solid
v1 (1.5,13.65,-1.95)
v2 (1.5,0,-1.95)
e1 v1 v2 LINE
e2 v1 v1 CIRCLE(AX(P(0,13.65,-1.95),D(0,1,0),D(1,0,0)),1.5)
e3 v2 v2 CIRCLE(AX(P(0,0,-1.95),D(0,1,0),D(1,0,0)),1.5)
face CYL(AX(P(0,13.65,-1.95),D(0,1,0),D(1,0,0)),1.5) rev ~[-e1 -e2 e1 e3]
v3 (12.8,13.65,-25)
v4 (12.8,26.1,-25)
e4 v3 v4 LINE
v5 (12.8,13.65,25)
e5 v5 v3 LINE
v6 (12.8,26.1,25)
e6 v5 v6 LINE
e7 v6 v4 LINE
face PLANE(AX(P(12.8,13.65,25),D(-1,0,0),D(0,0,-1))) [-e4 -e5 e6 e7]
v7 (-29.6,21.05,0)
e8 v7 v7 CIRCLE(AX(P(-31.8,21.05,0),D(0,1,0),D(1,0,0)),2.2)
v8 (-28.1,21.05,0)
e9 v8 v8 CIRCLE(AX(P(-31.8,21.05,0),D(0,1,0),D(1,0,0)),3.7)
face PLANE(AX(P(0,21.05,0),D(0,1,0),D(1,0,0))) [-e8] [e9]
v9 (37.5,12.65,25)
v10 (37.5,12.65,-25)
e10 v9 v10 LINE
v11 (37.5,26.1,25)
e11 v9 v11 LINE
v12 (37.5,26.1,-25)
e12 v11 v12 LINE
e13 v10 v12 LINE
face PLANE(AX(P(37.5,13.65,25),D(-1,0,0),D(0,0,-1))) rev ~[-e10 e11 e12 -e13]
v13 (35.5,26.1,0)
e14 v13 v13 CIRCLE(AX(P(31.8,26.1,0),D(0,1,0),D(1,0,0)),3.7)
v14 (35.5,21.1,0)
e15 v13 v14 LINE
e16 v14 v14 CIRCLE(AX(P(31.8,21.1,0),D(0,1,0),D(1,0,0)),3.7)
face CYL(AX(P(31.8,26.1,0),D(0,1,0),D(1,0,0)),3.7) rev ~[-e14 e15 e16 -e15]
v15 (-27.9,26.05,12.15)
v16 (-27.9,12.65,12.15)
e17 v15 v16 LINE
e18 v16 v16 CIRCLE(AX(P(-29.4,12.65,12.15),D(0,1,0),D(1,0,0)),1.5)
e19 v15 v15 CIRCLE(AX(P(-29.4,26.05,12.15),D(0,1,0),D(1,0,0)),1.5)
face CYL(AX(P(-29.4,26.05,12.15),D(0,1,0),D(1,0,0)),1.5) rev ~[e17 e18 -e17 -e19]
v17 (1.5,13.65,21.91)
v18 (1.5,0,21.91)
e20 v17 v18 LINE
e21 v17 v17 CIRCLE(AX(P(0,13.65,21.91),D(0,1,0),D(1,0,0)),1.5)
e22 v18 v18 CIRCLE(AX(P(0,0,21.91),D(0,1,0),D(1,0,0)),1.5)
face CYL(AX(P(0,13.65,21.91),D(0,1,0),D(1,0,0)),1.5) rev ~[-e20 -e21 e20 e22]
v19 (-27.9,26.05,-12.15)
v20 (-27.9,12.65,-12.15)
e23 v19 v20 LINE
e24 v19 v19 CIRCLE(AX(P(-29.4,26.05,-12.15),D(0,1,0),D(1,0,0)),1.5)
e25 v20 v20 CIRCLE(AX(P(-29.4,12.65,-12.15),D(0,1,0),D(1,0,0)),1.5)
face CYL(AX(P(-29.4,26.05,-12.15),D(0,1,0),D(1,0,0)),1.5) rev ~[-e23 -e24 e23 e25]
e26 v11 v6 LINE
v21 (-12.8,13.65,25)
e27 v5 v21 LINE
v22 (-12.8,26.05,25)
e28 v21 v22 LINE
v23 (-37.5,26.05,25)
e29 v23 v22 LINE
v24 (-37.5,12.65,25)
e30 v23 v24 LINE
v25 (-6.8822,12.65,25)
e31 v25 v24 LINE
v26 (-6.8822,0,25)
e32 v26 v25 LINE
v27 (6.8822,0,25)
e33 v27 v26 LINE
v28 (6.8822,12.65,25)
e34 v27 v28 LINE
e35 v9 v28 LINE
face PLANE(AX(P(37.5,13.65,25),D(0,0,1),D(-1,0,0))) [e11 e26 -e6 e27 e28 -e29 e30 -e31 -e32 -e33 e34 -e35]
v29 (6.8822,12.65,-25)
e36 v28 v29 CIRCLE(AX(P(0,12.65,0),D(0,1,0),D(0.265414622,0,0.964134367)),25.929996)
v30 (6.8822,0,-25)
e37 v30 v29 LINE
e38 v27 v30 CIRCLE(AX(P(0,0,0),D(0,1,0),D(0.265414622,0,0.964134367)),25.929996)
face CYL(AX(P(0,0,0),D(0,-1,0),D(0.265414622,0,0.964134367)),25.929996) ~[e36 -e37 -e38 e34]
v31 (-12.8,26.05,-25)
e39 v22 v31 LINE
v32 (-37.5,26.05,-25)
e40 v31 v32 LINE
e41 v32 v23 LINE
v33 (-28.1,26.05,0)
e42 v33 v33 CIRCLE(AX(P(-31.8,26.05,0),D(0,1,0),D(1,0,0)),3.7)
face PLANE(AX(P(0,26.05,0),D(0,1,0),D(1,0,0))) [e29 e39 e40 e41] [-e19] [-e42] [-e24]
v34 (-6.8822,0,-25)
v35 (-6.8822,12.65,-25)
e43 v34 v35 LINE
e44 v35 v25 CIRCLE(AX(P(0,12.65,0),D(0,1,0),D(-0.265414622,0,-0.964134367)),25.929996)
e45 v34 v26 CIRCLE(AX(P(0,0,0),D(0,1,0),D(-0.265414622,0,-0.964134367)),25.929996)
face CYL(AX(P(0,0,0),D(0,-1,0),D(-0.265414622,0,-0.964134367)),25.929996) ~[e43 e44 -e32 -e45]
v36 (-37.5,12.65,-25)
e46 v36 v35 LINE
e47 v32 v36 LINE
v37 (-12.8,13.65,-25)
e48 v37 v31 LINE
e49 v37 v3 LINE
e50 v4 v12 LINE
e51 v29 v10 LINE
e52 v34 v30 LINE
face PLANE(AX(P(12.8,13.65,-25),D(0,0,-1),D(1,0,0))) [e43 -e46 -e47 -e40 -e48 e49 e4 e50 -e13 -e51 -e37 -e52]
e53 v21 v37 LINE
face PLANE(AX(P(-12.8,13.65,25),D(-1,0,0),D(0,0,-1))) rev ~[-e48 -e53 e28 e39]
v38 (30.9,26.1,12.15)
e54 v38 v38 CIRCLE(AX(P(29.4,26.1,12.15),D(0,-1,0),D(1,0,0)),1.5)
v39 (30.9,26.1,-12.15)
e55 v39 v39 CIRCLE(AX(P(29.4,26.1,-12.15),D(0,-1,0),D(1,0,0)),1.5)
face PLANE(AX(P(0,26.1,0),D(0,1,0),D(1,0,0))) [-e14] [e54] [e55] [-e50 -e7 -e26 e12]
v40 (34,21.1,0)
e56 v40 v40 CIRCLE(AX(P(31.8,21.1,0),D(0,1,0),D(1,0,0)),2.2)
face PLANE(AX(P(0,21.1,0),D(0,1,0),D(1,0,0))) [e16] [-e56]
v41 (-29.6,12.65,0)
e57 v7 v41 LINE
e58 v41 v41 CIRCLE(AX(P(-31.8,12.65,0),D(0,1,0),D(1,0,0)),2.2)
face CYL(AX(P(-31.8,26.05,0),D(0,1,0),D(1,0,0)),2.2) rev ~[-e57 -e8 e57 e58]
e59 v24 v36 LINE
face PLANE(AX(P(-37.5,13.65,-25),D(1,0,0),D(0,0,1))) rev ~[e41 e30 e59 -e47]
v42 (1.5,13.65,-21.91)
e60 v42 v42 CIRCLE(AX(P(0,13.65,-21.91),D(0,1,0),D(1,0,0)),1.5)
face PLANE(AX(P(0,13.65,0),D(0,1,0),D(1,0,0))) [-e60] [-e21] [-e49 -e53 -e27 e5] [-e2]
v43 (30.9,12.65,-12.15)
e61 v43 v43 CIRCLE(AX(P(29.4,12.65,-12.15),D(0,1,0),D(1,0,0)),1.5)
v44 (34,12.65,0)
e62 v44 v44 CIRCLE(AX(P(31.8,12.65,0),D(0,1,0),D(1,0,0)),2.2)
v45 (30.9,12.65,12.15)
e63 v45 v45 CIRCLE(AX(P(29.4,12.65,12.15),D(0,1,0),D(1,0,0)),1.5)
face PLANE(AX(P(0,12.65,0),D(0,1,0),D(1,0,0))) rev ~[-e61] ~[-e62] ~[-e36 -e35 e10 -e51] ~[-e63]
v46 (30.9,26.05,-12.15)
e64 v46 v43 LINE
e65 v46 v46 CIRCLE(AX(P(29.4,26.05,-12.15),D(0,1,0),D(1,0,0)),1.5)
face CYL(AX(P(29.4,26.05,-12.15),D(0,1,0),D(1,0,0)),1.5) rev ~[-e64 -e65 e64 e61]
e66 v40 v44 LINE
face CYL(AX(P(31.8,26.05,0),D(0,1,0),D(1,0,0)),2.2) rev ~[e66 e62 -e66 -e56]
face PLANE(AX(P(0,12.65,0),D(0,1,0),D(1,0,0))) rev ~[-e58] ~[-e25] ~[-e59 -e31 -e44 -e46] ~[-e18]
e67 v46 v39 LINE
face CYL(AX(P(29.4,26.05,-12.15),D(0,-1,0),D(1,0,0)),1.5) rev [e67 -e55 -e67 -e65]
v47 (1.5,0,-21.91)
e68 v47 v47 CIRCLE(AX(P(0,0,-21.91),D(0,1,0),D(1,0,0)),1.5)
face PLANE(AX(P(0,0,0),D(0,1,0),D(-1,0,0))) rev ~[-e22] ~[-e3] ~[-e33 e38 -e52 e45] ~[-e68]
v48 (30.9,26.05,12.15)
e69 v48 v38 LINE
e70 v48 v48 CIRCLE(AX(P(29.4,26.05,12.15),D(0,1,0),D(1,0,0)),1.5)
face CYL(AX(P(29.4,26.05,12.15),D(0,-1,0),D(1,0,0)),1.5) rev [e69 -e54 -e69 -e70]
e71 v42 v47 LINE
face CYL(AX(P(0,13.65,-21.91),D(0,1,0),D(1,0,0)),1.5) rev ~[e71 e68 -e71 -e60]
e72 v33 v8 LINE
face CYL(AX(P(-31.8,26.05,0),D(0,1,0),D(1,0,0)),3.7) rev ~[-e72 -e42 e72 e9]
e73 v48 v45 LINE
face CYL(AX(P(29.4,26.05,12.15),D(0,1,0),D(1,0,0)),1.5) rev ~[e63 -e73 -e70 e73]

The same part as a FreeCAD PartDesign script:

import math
import FreeCAD as App
import Part
import Sketcher

V = App.Vector


def add_polygon(sketch, points):
    """Adds a closed chain of lines whose ends are joined by coincident constraints."""
    first, n = sketch.GeometryCount, len(points)
    for a, b in zip(points, points[1:] + points[:1]):
        sketch.addGeometry(Part.LineSegment(App.Vector(*a, 0), App.Vector(*b, 0)), False)
    for i in range(n):
        sketch.addConstraint(Sketcher.Constraint("Coincident", first + i, 2, first + (i + 1) % n, 1))

doc = App.newDocument("Part")
params = doc.addObject("Spreadsheet::Sheet", "Params")
for row, (alias, value) in enumerate([
    ("sketch1_radius", "25.93 mm"),
    ("pad1_length", "12.65 mm"),
    ("sketch2_width", "75 mm"),
    ("sketch2_height", "50 mm"),
    ("pad2_length", "1 mm"),
    ("sketch3_width", "24.7 mm"),
    ("sketch3_height", "50 mm"),
    ("pad3_length", "12.4 mm"),
    ("sketch4_width", "24.7 mm"),
    ("sketch4_height", "50 mm"),
    ("pad4_length", "12.45 mm"),
    ("sketch5_diameter", "3 mm"),
    ("pocket1_length", "18.8 mm"),
    ("sketch6_diameter", "3 mm"),
    ("sketch6_diameter2", "4.4 mm"),
    ("pocket2_length", "35 mm"),
    ("sketch7_diameter", "7.4 mm"),
    ("pocket3_length", "5 mm"),
    ("sketch8_diameter", "7.4 mm"),
    ("pocket4_length", "5 mm"),
], start=1):
    params.set(f"A{row}", alias)
    params.set(f"B{row}", "=" + value)
    params.setAlias(f"B{row}", alias)

body = doc.addObject("PartDesign::Body", "Body")

# Sketch on XZ plane
sketch1 = body.newObject("Sketcher::SketchObject", "Sketch")
sketch1.AttachmentSupport = (doc.getObject("XZ_Plane"), [""])
sketch1.MapMode = "FlatFace"
sketch1.addGeometry([
    Part.LineSegment(V(7, -25, 0), V(-7, -25, 0)),
    Part.ArcOfCircle(Part.Circle(V(0, 0, 0), V(0, 0, 1), 26), math.radians(105), math.radians(255)),
    Part.LineSegment(V(-7, 25, 0), V(7, 25, 0)),
    Part.ArcOfCircle(Part.Circle(V(0, 0, 0), V(0, 0, 1), 26), math.radians(-75), math.radians(75)),
], False)
sketch1.addConstraint([
    Sketcher.Constraint("Coincident", 0, 2, 1, 2),
    Sketcher.Constraint("Coincident", 1, 1, 2, 1),
    Sketcher.Constraint("Coincident", 2, 2, 3, 2),
    Sketcher.Constraint("Coincident", 3, 1, 0, 1),
    Sketcher.Constraint("Horizontal", 0),
    Sketcher.Constraint("Horizontal", 2),
    Sketcher.Constraint("Coincident", 1, 3, -1, 1),
    Sketcher.Constraint("Coincident", 3, 3, -1, 1),
    Sketcher.Constraint("Equal", 1, 3),
    Sketcher.Constraint("Vertical", 0, 2, 1, 1),
    Sketcher.Constraint("DistanceY", 0, 2, 1, 1, 50.0),
    Sketcher.Constraint("Radius", 1, 25.93),
])
sketch1.setExpression("Constraints[11]", "Params.sketch1_radius")
pad1 = body.newObject("PartDesign::Pad", "Pad")
pad1.Profile = sketch1
pad1.setExpression("Length", "Params.pad1_length")
pad1.Reversed = True

# Sketch on XZ plane
sketch2 = body.newObject("Sketcher::SketchObject", "Sketch001")
sketch2.AttachmentSupport = (doc.getObject("XZ_Plane"), [""])
sketch2.MapMode = "FlatFace"
sketch2.AttachmentOffset = App.Placement(V(0, 0, -12.65), App.Rotation())
add_polygon(sketch2, [(38, -25), (-38, -25), (-38, 25), (38, 25)])  # lines 0-3
sketch2.addConstraint([
    Sketcher.Constraint("Horizontal", 0),
    Sketcher.Constraint("Vertical", 1),
    Sketcher.Constraint("Horizontal", 2),
    Sketcher.Constraint("Vertical", 3),
    Sketcher.Constraint("Symmetric", 0, 2, 2, 2, -1, 1),
    Sketcher.Constraint("DistanceX", 0, 2, 0, 1, 75.0),
    Sketcher.Constraint("DistanceY", 1, 1, 1, 2, 50.0),
])
sketch2.setExpression("Constraints[9]", "Params.sketch2_width")
sketch2.setExpression("Constraints[10]", "Params.sketch2_height")
pad2 = body.newObject("PartDesign::Pad", "Pad001")
pad2.Profile = sketch2
pad2.setExpression("Length", "Params.pad2_length")
pad2.Reversed = True

# Sketch on XZ plane
sketch3 = body.newObject("Sketcher::SketchObject", "Sketch002")
sketch3.AttachmentSupport = (doc.getObject("XZ_Plane"), [""])
sketch3.MapMode = "FlatFace"
sketch3.AttachmentOffset = App.Placement(V(0, 0, -13.65), App.Rotation())
add_polygon(sketch3, [(-38, 25), (-13, 25), (-13, -25), (-38, -25)])  # lines 0-3
sketch3.addConstraint([
    Sketcher.Constraint("Horizontal", 0),
    Sketcher.Constraint("Vertical", 1),
    Sketcher.Constraint("Horizontal", 2),
    Sketcher.Constraint("Vertical", 3),
    Sketcher.Constraint("DistanceX", 0, 1, 0, 2, 24.7),
    Sketcher.Constraint("DistanceY", 1, 2, 1, 1, 50.0),
    Sketcher.Constraint("DistanceY", -1, 1, 0, 2, 25.0),
    Sketcher.Constraint("DistanceX", 0, 2, -1, 1, 12.8),
])
sketch3.setExpression("Constraints[8]", "Params.sketch3_width")
sketch3.setExpression("Constraints[9]", "Params.sketch3_height")
pad3 = body.newObject("PartDesign::Pad", "Pad002")
pad3.Profile = sketch3
pad3.setExpression("Length", "Params.pad3_length")
pad3.Reversed = True

# Sketch on XZ plane
sketch4 = body.newObject("Sketcher::SketchObject", "Sketch003")
sketch4.AttachmentSupport = (doc.getObject("XZ_Plane"), [""])
sketch4.MapMode = "FlatFace"
sketch4.AttachmentOffset = App.Placement(V(0, 0, -13.65), App.Rotation())
add_polygon(sketch4, [(13, 25), (38, 25), (38, -25), (13, -25)])  # lines 0-3
sketch4.addConstraint([
    Sketcher.Constraint("Horizontal", 0),
    Sketcher.Constraint("Vertical", 1),
    Sketcher.Constraint("Horizontal", 2),
    Sketcher.Constraint("Vertical", 3),
    Sketcher.Constraint("DistanceX", 0, 1, 0, 2, 24.7),
    Sketcher.Constraint("DistanceY", 1, 2, 1, 1, 50.0),
    Sketcher.Constraint("DistanceY", -1, 1, 0, 2, 25.0),
    Sketcher.Constraint("DistanceX", -1, 1, 0, 2, 37.5),
])
sketch4.setExpression("Constraints[8]", "Params.sketch4_width")
sketch4.setExpression("Constraints[9]", "Params.sketch4_height")
pad4 = body.newObject("PartDesign::Pad", "Pad003")
pad4.Profile = sketch4
pad4.setExpression("Length", "Params.pad4_length")
pad4.Reversed = True

# Sketch on XZ plane
sketch5 = body.newObject("Sketcher::SketchObject", "Sketch004")
sketch5.AttachmentSupport = (doc.getObject("XZ_Plane"), [""])
sketch5.MapMode = "FlatFace"
sketch5.AttachmentOffset = App.Placement(V(0, 0, -13.65), App.Rotation())
sketch5.addGeometry([
    Part.Circle(V(0, -21.9, 0), V(0, 0, 1), 1.5),
    Part.Circle(V(0, 21.9, 0), V(0, 0, 1), 1.5),
    Part.Circle(V(0, -1.9, 0), V(0, 0, 1), 1.5),
], False)
sketch5.addConstraint([
    Sketcher.Constraint("Equal", 0, 1),
    Sketcher.Constraint("Equal", 1, 2),
    Sketcher.Constraint("Symmetric", 0, 3, 1, 3, -1, 1),
    Sketcher.Constraint("PointOnObject", 0, 3, -2),
    Sketcher.Constraint("PointOnObject", 2, 3, -2),
    Sketcher.Constraint("Diameter", 0, 3.0),
    Sketcher.Constraint("DistanceY", 0, 3, -1, 1, 21.91),
    Sketcher.Constraint("DistanceY", 2, 3, 1, 3, 23.86),
])
sketch5.setExpression("Constraints[5]", "Params.sketch5_diameter")
pocket1 = body.newObject("PartDesign::Pocket", "Pocket")
pocket1.Profile = sketch5
pocket1.setExpression("Length", "Params.pocket1_length")
pocket1.Reversed = True

# Sketch on XZ plane
sketch6 = body.newObject("Sketcher::SketchObject", "Sketch005")
sketch6.AttachmentSupport = (doc.getObject("XZ_Plane"), [""])
sketch6.MapMode = "FlatFace"
sketch6.AttachmentOffset = App.Placement(V(0, 0, -26.05), App.Rotation())
sketch6.addGeometry([
    Part.Circle(V(-29.4, -12.2, 0), V(0, 0, 1), 1.5),  # 0
    Part.Circle(V(-29.4, 12.2, 0), V(0, 0, 1), 1.5),  # 1
    Part.Circle(V(-31.8, 0, 0), V(0, 0, 1), 2.2),  # 2
    Part.Circle(V(29.4, -12.2, 0), V(0, 0, 1), 1.5),  # 3
    Part.Circle(V(29.4, 12.2, 0), V(0, 0, 1), 1.5),  # 4
    Part.Circle(V(31.8, 0, 0), V(0, 0, 1), 2.2),  # 5
], False)
sketch6.addConstraint([
    Sketcher.Constraint("Equal", 0, 1),
    Sketcher.Constraint("Equal", 1, 3),
    Sketcher.Constraint("Equal", 3, 4),
    Sketcher.Constraint("Equal", 2, 5),
    Sketcher.Constraint("Symmetric", 1, 3, 3, 3, -1, 1),
    Sketcher.Constraint("Symmetric", 0, 3, 4, 3, -1, 1),
    Sketcher.Constraint("Symmetric", 2, 3, 5, 3, -1, 1),
    Sketcher.Constraint("Symmetric", 0, 3, 3, 3, -2),
    Sketcher.Constraint("PointOnObject", 2, 3, -1),
    Sketcher.Constraint("Diameter", 0, 3.0),
    Sketcher.Constraint("Diameter", 2, 4.4),
    Sketcher.Constraint("DistanceX", 0, 3, -1, 1, 29.4),
    Sketcher.Constraint("DistanceX", 2, 3, -1, 1, 31.8),
    Sketcher.Constraint("DistanceY", 0, 3, 1, 3, 24.3),
])
sketch6.setExpression("Constraints[9]", "Params.sketch6_diameter")
sketch6.setExpression("Constraints[10]", "Params.sketch6_diameter2")
pocket2 = body.newObject("PartDesign::Pocket", "Pocket001")
pocket2.Profile = sketch6
pocket2.setExpression("Length", "Params.pocket2_length")
pocket2.Midplane = True

# Sketch on XZ plane
sketch7 = body.newObject("Sketcher::SketchObject", "Sketch006")
sketch7.AttachmentSupport = (doc.getObject("XZ_Plane"), [""])
sketch7.MapMode = "FlatFace"
sketch7.AttachmentOffset = App.Placement(V(0, 0, -26.1), App.Rotation())
sketch7.addGeometry(Part.Circle(V(31.8, 0, 0), V(0, 0, 1), 3.7), False)
sketch7.addConstraint([
    Sketcher.Constraint("PointOnObject", 0, 3, -1),
    Sketcher.Constraint("Diameter", 0, 7.4),
    Sketcher.Constraint("DistanceX", -1, 1, 0, 3, 31.8),
])
sketch7.setExpression("Constraints[1]", "Params.sketch7_diameter")
pocket3 = body.newObject("PartDesign::Pocket", "Pocket002")
pocket3.Profile = sketch7
pocket3.setExpression("Length", "Params.pocket3_length")
pocket3.Reversed = True

# Sketch on XZ plane
sketch8 = body.newObject("Sketcher::SketchObject", "Sketch007")
sketch8.AttachmentSupport = (doc.getObject("XZ_Plane"), [""])
sketch8.MapMode = "FlatFace"
sketch8.AttachmentOffset = App.Placement(V(0, 0, -26.05), App.Rotation())
sketch8.addGeometry(Part.Circle(V(-31.8, 0, 0), V(0, 0, 1), 3.7), False)
sketch8.addConstraint([
    Sketcher.Constraint("PointOnObject", 0, 3, -1),
    Sketcher.Constraint("Diameter", 0, 7.4),
    Sketcher.Constraint("DistanceX", 0, 3, -1, 1, 31.8),
])
sketch8.setExpression("Constraints[1]", "Params.sketch8_diameter")
pocket4 = body.newObject("PartDesign::Pocket", "Pocket003")
pocket4.Profile = sketch8
pocket4.setExpression("Length", "Params.pocket4_length")
pocket4.Reversed = True

doc.recompute()
